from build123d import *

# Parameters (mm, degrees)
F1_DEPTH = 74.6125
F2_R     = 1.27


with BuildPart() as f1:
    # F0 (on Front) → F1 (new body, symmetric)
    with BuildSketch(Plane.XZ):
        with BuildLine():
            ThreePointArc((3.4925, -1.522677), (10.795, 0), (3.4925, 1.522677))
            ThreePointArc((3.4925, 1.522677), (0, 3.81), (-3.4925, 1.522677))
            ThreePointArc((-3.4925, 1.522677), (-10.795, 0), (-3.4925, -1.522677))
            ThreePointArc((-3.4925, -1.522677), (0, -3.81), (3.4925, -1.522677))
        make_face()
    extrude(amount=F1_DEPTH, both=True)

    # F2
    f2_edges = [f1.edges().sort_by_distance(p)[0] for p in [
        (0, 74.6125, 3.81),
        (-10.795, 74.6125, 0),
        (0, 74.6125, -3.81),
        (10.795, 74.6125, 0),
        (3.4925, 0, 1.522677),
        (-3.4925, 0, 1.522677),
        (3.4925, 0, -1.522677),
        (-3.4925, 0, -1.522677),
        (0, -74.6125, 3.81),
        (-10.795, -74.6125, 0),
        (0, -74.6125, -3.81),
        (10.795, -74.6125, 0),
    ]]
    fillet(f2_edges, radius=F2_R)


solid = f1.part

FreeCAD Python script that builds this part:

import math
import FreeCAD as App
import Part
import Sketcher
from FreeCAD import Vector
Q = App.Units.Quantity

doc = App.newDocument("Part")
body = doc.addObject("PartDesign::Body", "Body")

# Sketch on XZ plane
sketch1 = doc.addObject("Sketcher::SketchObject", "Sketch")
body.addObject(sketch1)
sketch1.AttachmentSupport = (doc.XZ_Plane, [""])
sketch1.MapMode = "FlatFace"
sketch1.addGeometry([
    Part.ArcOfCircle(Part.Circle(Vector(6.985, 0, 0), Vector(0, 0, 1), 3.81), math.radians(-156.443528), math.radians(156.443528)),
    Part.ArcOfCircle(Part.Circle(Vector(0, 0, 0), Vector(0, 0, 1), 3.81), math.radians(23.556476), math.radians(156.443524)),
    Part.ArcOfCircle(Part.Circle(Vector(-6.985, 0, 0), Vector(0, 0, 1), 3.81), math.radians(23.556472), math.radians(336.443528)),
    Part.ArcOfCircle(Part.Circle(Vector(0, 0, 0), Vector(0, 0, 1), 3.81), math.radians(-156.443524), math.radians(-23.556476)),
], False)
sketch1.addConstraint([
    Sketcher.Constraint("Coincident", 0, 2, 1, 1),
    Sketcher.Constraint("Coincident", 1, 2, 2, 1),
    Sketcher.Constraint("Coincident", 2, 2, 3, 1),
    Sketcher.Constraint("Coincident", 3, 2, 0, 1),
    Sketcher.Constraint("Coincident", 1, 3, -1, 1),
    Sketcher.Constraint("Coincident", 3, 3, -1, 1),
    Sketcher.Constraint("Equal", 0, 1),
    Sketcher.Constraint("Equal", 1, 2),
    Sketcher.Constraint("Equal", 2, 3),
    Sketcher.Constraint("Symmetric", 0, 3, 2, 3, -1, 1),
    Sketcher.Constraint("PointOnObject", 0, 3, -1),
    Sketcher.Constraint("Radius", 0, Q("0.15 in")),
    Sketcher.Constraint("DistanceX", 2, 3, 0, 3, Q("0.55 in")),
])
pad1 = doc.addObject("PartDesign::Pad", "Pad")
body.addObject(pad1)
pad1.Profile = sketch1
pad1.Length = Q("5.875 in")
pad1.Midplane = True
doc.recompute()

fillet = doc.addObject("PartDesign::Fillet", "Fillet")
body.addObject(fillet)
fillet.Base = (pad1, ["Edge1"])
fillet.UseAllEdges = True
fillet.Radius = Q("0.05 in")

doc.recompute()
